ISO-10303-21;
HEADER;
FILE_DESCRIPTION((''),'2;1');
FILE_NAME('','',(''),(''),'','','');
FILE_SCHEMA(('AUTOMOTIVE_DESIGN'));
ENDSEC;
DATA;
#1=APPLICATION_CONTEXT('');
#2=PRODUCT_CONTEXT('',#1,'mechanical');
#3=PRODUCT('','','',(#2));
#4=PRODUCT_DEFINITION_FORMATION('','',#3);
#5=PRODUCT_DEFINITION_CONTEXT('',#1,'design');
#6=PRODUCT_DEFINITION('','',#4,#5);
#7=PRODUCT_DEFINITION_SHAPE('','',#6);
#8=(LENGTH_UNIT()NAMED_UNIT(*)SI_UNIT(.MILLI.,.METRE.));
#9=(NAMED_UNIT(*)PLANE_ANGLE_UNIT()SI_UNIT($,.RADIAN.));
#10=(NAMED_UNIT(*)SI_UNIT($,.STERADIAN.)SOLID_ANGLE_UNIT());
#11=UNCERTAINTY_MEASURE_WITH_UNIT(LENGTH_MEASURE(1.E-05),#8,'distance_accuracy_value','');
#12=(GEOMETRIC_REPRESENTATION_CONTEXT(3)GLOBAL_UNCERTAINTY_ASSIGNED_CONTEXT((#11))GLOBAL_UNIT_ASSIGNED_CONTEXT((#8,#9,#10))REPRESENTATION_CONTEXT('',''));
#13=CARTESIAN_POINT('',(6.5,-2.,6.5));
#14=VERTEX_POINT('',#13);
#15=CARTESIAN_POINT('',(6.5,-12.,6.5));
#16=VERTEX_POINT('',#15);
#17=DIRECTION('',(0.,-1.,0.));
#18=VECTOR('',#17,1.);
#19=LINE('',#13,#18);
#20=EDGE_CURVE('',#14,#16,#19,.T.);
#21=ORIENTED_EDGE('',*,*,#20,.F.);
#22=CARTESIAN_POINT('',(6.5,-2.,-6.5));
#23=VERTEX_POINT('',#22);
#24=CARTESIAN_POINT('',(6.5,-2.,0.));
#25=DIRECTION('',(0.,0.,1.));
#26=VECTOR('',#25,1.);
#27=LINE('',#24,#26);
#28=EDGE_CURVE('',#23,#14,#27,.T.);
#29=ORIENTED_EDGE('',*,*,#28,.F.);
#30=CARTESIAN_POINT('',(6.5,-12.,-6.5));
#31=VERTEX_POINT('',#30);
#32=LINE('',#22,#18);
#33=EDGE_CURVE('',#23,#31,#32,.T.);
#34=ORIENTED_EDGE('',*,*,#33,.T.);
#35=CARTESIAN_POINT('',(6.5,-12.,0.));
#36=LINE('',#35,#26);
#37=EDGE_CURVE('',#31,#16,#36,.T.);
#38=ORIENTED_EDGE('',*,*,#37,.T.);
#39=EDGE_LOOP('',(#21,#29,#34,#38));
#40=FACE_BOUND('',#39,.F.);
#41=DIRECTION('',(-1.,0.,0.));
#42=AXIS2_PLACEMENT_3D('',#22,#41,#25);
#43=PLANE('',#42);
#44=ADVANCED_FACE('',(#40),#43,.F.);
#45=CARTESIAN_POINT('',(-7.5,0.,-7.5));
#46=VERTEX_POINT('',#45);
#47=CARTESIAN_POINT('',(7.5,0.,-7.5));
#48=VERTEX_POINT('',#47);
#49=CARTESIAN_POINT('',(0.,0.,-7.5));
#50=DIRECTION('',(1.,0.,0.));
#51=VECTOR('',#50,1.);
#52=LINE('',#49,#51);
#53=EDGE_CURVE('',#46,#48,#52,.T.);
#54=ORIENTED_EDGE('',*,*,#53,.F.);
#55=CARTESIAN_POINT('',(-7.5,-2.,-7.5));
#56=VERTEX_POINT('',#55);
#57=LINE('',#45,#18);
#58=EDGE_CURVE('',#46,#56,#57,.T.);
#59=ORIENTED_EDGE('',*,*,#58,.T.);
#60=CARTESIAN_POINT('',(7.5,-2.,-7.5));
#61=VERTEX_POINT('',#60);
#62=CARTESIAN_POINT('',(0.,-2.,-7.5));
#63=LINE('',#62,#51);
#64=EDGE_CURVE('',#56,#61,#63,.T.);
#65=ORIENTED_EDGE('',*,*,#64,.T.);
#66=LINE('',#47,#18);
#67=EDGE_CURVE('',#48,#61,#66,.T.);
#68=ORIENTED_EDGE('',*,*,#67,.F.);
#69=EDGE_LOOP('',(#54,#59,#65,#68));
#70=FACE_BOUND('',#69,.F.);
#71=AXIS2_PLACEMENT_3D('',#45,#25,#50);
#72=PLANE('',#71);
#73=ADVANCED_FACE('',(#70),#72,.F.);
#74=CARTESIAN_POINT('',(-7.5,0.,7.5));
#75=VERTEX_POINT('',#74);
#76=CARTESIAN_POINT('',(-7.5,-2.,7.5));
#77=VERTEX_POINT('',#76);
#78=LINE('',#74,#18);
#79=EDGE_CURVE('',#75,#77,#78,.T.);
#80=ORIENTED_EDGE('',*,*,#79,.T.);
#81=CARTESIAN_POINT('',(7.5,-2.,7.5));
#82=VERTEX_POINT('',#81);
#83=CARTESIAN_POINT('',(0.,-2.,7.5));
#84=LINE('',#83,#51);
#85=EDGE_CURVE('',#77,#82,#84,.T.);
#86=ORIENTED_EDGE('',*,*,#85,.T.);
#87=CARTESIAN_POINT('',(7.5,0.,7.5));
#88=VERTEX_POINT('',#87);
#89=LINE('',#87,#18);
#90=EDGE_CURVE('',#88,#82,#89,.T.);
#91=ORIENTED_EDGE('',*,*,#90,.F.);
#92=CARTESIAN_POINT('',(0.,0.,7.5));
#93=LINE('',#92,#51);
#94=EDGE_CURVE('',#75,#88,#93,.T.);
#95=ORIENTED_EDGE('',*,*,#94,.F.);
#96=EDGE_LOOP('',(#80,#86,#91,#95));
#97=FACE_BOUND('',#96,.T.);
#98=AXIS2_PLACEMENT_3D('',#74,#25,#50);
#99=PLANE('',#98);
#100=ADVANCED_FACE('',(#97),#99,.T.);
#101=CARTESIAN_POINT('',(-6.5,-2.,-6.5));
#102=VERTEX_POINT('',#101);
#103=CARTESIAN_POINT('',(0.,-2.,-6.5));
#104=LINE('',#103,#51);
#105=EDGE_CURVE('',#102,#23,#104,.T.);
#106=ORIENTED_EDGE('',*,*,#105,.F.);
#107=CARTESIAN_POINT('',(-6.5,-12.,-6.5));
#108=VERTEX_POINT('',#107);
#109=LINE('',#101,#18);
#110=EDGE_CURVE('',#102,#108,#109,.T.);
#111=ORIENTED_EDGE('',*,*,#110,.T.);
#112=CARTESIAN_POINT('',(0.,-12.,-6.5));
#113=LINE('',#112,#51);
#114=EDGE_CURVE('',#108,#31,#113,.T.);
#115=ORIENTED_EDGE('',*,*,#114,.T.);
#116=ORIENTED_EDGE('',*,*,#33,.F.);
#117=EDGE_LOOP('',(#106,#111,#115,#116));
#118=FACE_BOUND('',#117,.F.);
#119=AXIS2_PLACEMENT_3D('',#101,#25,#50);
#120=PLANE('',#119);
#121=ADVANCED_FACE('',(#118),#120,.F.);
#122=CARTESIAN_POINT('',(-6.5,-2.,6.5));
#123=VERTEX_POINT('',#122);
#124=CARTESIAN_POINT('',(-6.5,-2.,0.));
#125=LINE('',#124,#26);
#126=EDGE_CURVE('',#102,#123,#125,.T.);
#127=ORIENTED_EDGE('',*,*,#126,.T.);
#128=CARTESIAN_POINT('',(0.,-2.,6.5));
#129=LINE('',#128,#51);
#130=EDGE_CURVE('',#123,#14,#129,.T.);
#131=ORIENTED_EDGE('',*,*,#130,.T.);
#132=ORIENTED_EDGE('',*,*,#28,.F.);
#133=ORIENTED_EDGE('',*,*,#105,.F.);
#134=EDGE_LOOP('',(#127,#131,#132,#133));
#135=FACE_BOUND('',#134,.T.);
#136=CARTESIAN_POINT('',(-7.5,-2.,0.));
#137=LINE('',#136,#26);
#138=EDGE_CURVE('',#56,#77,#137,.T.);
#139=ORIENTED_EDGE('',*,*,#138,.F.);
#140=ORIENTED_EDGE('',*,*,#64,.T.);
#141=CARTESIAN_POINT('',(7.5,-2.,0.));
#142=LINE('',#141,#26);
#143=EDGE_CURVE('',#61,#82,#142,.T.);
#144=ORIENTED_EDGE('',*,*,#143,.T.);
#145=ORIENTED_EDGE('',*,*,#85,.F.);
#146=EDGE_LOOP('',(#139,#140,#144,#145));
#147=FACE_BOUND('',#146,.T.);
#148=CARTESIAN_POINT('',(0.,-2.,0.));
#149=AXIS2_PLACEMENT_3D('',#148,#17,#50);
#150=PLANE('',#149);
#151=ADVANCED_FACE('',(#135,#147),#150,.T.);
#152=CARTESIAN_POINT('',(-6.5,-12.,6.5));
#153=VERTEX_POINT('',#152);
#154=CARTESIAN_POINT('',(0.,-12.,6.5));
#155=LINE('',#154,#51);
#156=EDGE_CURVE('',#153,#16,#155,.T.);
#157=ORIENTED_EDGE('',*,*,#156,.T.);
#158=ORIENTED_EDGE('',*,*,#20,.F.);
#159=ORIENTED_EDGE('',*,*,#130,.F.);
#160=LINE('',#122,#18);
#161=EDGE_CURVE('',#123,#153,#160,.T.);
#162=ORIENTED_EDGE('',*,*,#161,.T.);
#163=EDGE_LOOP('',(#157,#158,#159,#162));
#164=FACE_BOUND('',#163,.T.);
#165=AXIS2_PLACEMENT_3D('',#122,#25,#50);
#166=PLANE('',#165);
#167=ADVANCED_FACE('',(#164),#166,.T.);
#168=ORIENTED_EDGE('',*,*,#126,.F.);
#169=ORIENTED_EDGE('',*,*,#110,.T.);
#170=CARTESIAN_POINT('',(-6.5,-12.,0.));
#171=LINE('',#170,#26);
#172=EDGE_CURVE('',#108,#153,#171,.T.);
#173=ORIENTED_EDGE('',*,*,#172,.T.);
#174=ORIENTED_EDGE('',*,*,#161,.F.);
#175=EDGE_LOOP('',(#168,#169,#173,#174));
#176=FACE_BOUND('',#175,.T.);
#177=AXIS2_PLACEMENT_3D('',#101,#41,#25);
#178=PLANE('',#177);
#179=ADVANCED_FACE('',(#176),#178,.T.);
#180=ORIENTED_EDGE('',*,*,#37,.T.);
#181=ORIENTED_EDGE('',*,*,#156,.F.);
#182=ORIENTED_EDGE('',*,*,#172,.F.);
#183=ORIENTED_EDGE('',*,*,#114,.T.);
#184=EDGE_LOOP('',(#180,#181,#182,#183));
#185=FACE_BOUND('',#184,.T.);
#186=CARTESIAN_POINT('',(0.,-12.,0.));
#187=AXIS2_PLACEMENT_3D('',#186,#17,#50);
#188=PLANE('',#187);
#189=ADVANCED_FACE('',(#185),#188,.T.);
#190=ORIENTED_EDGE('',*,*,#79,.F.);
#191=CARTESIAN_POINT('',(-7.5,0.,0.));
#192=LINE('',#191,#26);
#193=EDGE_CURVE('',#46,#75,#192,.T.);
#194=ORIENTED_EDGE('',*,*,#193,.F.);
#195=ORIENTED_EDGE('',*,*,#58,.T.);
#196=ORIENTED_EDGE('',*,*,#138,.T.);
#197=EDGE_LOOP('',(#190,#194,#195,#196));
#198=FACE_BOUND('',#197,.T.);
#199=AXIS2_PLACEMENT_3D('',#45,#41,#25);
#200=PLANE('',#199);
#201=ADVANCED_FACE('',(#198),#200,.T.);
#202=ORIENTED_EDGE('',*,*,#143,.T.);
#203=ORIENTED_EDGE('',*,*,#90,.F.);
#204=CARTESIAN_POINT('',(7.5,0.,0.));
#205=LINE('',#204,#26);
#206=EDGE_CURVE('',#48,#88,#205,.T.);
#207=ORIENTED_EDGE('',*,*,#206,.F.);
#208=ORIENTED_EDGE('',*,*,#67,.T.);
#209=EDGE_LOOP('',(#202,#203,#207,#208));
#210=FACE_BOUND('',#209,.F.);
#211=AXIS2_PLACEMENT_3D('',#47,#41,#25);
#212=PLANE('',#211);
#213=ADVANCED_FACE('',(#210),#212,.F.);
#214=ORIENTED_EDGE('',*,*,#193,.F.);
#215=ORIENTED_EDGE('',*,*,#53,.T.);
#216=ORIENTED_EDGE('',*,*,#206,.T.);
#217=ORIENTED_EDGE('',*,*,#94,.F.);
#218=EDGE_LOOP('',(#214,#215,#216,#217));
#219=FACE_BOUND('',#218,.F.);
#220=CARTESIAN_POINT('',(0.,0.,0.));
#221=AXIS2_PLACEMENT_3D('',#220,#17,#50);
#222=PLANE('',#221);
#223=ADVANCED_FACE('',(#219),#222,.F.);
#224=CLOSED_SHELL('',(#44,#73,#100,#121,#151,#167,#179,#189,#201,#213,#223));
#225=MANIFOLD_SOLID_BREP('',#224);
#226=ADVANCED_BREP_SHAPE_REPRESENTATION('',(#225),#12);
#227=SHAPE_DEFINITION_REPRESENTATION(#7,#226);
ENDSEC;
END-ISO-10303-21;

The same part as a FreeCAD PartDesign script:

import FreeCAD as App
import Part
import Sketcher

V = App.Vector


def add_polygon(sketch, points):
    """Adds a closed chain of lines whose ends are joined by coincident constraints."""
    first, n = sketch.GeometryCount, len(points)
    for a, b in zip(points, points[1:] + points[:1]):
        sketch.addGeometry(Part.LineSegment(App.Vector(*a, 0), App.Vector(*b, 0)), False)
    for i in range(n):
        sketch.addConstraint(Sketcher.Constraint("Coincident", first + i, 2, first + (i + 1) % n, 1))

doc = App.newDocument("Part")
body = doc.addObject("PartDesign::Body", "Body")

# Sketch on XZ plane
sketch1 = body.newObject("Sketcher::SketchObject", "Sketch")
sketch1.AttachmentSupport = (doc.getObject("XZ_Plane"), [""])
sketch1.MapMode = "FlatFace"
add_polygon(sketch1, [(-8, 8), (-8, -8), (8, -8), (8, 8)])  # lines 0-3
sketch1.addConstraint(Sketcher.Constraint("Vertical", 0))
sketch1.addConstraint(Sketcher.Constraint("Horizontal", 1))
sketch1.addConstraint(Sketcher.Constraint("Vertical", 2))
sketch1.addConstraint(Sketcher.Constraint("Horizontal", 3))
sketch1.addConstraint(Sketcher.Constraint("Symmetric", 0, 2, 2, 2, -1, 1))
sketch1.addConstraint(Sketcher.Constraint("Equal", 3, 0))
sketch1.addConstraint(Sketcher.Constraint("DistanceX", 1, 1, 1, 2, 15.0))
pad1 = body.newObject("PartDesign::Pad", "Pad")
pad1.Profile = sketch1
pad1.Length = 2

# Sketch on XZ plane
sketch2 = body.newObject("Sketcher::SketchObject", "Sketch001")
sketch2.AttachmentSupport = (doc.getObject("XZ_Plane"), [""])
sketch2.MapMode = "FlatFace"
sketch2.AttachmentOffset = App.Placement(V(0, 0, 2), App.Rotation())
add_polygon(sketch2, [(-6, 6), (-6, -6), (6, -6), (6, 6)])  # lines 0-3
sketch2.addConstraint(Sketcher.Constraint("Vertical", 0))
sketch2.addConstraint(Sketcher.Constraint("Horizontal", 1))
sketch2.addConstraint(Sketcher.Constraint("Vertical", 2))
sketch2.addConstraint(Sketcher.Constraint("Horizontal", 3))
sketch2.addConstraint(Sketcher.Constraint("Symmetric", 0, 2, 2, 2, -1, 1))
sketch2.addConstraint(Sketcher.Constraint("Equal", 3, 0))
sketch2.addConstraint(Sketcher.Constraint("DistanceX", 1, 1, 1, 2, 13.0))
pad2 = body.newObject("PartDesign::Pad", "Pad001")
pad2.Profile = sketch2
pad2.Length = 10

doc.recompute()
